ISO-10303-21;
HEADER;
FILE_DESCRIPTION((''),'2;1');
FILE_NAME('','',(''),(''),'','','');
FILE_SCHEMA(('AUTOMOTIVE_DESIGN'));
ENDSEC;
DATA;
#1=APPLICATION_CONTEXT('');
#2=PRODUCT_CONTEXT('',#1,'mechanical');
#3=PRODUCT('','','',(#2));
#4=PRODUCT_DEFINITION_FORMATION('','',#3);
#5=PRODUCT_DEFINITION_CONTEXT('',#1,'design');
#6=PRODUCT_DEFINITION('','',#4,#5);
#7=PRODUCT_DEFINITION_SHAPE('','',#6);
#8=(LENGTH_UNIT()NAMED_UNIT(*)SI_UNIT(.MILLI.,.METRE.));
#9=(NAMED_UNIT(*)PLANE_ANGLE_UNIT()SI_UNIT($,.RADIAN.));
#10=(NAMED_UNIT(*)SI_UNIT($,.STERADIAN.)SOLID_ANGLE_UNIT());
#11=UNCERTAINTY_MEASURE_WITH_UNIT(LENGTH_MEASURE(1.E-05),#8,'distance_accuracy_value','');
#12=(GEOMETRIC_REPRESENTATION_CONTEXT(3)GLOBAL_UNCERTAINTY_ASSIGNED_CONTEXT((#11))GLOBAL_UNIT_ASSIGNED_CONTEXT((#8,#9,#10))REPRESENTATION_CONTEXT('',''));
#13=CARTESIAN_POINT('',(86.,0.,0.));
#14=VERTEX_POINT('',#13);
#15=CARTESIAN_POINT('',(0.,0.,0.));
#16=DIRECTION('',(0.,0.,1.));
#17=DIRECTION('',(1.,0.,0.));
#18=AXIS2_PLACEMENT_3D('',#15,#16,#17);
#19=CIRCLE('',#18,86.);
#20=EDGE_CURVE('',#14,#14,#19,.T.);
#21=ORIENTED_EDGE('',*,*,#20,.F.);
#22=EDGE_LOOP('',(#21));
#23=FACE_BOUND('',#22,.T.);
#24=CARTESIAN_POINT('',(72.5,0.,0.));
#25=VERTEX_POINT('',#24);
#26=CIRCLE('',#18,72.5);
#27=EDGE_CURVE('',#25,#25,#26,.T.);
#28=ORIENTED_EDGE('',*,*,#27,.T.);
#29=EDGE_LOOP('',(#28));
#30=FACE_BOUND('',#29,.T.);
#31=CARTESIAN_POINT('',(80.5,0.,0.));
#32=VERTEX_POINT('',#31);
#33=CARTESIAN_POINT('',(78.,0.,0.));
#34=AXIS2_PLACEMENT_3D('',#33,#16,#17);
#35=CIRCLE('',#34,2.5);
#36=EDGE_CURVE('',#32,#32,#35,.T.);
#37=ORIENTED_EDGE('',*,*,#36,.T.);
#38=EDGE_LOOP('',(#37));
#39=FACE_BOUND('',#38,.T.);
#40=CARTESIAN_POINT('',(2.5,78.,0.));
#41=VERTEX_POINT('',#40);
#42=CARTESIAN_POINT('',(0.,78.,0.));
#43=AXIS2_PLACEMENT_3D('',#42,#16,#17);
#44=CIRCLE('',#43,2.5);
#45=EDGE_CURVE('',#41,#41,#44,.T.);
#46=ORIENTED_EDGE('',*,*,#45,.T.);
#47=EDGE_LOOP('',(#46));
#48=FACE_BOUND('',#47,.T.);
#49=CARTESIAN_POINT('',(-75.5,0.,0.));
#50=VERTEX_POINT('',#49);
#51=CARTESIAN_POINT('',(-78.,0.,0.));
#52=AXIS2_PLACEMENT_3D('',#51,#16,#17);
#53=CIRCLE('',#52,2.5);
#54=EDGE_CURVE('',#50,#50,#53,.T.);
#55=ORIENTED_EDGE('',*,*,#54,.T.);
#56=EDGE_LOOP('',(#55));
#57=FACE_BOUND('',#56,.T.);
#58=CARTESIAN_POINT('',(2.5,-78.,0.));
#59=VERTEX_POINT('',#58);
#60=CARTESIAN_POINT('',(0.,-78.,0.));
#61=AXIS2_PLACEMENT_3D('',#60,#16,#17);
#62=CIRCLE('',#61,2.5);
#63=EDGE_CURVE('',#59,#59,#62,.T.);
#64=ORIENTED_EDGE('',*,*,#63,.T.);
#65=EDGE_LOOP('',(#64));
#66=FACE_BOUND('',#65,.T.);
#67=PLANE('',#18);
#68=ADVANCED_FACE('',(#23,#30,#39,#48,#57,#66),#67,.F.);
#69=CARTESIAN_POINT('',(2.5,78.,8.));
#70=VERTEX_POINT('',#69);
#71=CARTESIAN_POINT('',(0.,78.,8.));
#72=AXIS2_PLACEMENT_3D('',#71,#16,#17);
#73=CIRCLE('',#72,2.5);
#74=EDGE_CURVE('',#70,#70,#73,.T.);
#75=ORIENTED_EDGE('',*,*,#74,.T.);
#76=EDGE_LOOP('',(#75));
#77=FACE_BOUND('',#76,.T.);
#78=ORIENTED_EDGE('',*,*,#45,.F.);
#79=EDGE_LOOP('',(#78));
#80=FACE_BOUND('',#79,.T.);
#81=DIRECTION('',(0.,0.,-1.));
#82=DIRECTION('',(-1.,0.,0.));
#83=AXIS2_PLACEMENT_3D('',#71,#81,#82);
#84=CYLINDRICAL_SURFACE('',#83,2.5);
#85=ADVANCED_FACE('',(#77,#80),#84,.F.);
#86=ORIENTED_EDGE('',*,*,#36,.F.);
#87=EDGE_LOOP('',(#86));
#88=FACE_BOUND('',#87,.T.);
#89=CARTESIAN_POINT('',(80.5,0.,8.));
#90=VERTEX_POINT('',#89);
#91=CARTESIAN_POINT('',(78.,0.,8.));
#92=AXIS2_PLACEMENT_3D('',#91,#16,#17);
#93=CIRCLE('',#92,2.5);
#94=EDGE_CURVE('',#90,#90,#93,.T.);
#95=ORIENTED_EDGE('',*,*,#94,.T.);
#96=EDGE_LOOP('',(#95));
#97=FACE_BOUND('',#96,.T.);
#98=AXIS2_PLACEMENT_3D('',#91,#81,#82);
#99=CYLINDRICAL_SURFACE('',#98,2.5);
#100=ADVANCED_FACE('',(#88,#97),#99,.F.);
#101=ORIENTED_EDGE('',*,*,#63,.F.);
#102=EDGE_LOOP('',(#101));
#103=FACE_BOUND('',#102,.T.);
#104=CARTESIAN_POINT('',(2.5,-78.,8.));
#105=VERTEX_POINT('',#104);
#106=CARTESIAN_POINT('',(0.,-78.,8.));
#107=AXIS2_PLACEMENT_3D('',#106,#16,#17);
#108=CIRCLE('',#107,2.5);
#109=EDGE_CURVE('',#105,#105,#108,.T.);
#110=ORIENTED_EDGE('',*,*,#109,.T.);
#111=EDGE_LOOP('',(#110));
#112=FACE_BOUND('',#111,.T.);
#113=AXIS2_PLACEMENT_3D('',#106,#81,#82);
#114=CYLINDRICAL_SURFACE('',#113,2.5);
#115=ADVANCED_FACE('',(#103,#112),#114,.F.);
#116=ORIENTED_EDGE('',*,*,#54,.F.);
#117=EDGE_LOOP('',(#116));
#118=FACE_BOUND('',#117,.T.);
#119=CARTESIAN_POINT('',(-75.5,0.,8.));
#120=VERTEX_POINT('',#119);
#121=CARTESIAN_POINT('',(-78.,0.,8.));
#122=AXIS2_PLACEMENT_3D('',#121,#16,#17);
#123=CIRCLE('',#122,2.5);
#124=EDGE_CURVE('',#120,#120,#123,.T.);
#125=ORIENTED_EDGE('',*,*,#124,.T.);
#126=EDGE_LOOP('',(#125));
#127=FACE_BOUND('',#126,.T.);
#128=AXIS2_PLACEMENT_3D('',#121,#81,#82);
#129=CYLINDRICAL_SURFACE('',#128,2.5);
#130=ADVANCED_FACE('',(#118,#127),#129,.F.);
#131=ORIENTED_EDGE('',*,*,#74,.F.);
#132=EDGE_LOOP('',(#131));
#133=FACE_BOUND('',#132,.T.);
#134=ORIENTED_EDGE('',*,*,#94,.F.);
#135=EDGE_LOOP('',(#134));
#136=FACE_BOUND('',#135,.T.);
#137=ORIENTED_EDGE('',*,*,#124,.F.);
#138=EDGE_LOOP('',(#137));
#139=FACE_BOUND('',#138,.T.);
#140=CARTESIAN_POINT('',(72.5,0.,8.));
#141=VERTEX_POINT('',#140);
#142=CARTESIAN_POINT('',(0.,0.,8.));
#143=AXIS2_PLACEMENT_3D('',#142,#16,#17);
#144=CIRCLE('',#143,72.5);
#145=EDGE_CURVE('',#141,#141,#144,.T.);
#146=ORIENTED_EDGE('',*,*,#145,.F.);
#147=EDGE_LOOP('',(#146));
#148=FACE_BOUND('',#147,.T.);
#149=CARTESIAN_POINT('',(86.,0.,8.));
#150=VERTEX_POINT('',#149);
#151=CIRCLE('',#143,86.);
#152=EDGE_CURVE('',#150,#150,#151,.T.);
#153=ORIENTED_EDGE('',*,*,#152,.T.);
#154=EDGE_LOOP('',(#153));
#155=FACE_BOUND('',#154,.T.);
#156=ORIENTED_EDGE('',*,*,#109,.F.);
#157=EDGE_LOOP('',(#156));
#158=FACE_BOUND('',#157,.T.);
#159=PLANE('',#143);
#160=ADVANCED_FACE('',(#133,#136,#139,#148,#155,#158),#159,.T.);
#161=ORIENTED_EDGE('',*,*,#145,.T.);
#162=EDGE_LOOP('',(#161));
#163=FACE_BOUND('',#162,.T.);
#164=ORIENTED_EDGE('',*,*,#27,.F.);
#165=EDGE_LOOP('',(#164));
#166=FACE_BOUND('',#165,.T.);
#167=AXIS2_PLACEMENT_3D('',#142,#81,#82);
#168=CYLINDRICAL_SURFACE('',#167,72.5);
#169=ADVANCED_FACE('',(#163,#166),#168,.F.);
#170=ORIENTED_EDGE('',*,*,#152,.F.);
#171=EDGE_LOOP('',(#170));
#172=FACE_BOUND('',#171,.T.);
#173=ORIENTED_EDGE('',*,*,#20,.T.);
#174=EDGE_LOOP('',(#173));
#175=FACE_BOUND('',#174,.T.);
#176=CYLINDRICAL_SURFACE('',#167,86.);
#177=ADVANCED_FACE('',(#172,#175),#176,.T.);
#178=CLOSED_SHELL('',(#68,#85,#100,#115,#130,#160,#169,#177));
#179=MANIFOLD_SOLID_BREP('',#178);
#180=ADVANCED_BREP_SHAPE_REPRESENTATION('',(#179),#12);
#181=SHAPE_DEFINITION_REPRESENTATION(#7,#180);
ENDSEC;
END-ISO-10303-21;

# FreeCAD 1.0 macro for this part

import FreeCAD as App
import Part
import Sketcher

V = App.Vector
Q = App.Units.Quantity

doc = App.newDocument("Part")
body = doc.addObject("PartDesign::Body", "Body")

sketch1 = body.newObject("Sketcher::SketchObject", "Sketch")
sketch1.AttachmentSupport = (doc.getObject("XY_Plane"), [""])
sketch1.MapMode = "FlatFace"
sketch1.addGeometry(Part.Circle(V(0, 0, 0), V(0, 0, 1), 86), False)
sketch1.addGeometry(Part.Circle(V(0, -78, 0), V(0, 0, 1), 2.5), False)
sketch1.addGeometry(Part.Circle(V(-78, 0, 0), V(0, 0, 1), 2.5), False)
sketch1.addGeometry(Part.Circle(V(0, 0, 0), V(0, 0, 1), 72.5), False)
sketch1.addGeometry(Part.Circle(V(78, 0, 0), V(0, 0, 1), 2.5), False)
sketch1.addGeometry(Part.Circle(V(0, 78, 0), V(0, 0, 1), 2.5), False)
sketch1.addConstraint(Sketcher.Constraint("Coincident", 0, 3, -1, 1))
sketch1.addConstraint(Sketcher.Constraint("Coincident", 3, 3, -1, 1))
sketch1.addConstraint(Sketcher.Constraint("Equal", 1, 2))
sketch1.addConstraint(Sketcher.Constraint("Equal", 2, 4))
sketch1.addConstraint(Sketcher.Constraint("Equal", 4, 5))
sketch1.addConstraint(Sketcher.Constraint("Symmetric", 2, 3, 4, 3, -1, 1))
sketch1.addConstraint(Sketcher.Constraint("Symmetric", 1, 3, 5, 3, -1, 1))
sketch1.addConstraint(Sketcher.Constraint("PointOnObject", 1, 3, -2))
sketch1.addConstraint(Sketcher.Constraint("PointOnObject", 2, 3, -1))
sketch1.addConstraint(Sketcher.Constraint("Diameter", 0, Q("172 mm")))
sketch1.addConstraint(Sketcher.Constraint("Diameter", 1, Q("5 mm")))
sketch1.addConstraint(Sketcher.Constraint("Diameter", 3, Q("145 mm")))
sketch1.addConstraint(Sketcher.Constraint("DistanceY", 1, 3, -1, 1, Q("78 mm")))
sketch1.addConstraint(Sketcher.Constraint("DistanceX", 2, 3, -1, 1, Q("78 mm")))
pad1 = body.newObject("PartDesign::Pad", "Pad")
pad1.Profile = sketch1
pad1.Length = 8

doc.recompute()
